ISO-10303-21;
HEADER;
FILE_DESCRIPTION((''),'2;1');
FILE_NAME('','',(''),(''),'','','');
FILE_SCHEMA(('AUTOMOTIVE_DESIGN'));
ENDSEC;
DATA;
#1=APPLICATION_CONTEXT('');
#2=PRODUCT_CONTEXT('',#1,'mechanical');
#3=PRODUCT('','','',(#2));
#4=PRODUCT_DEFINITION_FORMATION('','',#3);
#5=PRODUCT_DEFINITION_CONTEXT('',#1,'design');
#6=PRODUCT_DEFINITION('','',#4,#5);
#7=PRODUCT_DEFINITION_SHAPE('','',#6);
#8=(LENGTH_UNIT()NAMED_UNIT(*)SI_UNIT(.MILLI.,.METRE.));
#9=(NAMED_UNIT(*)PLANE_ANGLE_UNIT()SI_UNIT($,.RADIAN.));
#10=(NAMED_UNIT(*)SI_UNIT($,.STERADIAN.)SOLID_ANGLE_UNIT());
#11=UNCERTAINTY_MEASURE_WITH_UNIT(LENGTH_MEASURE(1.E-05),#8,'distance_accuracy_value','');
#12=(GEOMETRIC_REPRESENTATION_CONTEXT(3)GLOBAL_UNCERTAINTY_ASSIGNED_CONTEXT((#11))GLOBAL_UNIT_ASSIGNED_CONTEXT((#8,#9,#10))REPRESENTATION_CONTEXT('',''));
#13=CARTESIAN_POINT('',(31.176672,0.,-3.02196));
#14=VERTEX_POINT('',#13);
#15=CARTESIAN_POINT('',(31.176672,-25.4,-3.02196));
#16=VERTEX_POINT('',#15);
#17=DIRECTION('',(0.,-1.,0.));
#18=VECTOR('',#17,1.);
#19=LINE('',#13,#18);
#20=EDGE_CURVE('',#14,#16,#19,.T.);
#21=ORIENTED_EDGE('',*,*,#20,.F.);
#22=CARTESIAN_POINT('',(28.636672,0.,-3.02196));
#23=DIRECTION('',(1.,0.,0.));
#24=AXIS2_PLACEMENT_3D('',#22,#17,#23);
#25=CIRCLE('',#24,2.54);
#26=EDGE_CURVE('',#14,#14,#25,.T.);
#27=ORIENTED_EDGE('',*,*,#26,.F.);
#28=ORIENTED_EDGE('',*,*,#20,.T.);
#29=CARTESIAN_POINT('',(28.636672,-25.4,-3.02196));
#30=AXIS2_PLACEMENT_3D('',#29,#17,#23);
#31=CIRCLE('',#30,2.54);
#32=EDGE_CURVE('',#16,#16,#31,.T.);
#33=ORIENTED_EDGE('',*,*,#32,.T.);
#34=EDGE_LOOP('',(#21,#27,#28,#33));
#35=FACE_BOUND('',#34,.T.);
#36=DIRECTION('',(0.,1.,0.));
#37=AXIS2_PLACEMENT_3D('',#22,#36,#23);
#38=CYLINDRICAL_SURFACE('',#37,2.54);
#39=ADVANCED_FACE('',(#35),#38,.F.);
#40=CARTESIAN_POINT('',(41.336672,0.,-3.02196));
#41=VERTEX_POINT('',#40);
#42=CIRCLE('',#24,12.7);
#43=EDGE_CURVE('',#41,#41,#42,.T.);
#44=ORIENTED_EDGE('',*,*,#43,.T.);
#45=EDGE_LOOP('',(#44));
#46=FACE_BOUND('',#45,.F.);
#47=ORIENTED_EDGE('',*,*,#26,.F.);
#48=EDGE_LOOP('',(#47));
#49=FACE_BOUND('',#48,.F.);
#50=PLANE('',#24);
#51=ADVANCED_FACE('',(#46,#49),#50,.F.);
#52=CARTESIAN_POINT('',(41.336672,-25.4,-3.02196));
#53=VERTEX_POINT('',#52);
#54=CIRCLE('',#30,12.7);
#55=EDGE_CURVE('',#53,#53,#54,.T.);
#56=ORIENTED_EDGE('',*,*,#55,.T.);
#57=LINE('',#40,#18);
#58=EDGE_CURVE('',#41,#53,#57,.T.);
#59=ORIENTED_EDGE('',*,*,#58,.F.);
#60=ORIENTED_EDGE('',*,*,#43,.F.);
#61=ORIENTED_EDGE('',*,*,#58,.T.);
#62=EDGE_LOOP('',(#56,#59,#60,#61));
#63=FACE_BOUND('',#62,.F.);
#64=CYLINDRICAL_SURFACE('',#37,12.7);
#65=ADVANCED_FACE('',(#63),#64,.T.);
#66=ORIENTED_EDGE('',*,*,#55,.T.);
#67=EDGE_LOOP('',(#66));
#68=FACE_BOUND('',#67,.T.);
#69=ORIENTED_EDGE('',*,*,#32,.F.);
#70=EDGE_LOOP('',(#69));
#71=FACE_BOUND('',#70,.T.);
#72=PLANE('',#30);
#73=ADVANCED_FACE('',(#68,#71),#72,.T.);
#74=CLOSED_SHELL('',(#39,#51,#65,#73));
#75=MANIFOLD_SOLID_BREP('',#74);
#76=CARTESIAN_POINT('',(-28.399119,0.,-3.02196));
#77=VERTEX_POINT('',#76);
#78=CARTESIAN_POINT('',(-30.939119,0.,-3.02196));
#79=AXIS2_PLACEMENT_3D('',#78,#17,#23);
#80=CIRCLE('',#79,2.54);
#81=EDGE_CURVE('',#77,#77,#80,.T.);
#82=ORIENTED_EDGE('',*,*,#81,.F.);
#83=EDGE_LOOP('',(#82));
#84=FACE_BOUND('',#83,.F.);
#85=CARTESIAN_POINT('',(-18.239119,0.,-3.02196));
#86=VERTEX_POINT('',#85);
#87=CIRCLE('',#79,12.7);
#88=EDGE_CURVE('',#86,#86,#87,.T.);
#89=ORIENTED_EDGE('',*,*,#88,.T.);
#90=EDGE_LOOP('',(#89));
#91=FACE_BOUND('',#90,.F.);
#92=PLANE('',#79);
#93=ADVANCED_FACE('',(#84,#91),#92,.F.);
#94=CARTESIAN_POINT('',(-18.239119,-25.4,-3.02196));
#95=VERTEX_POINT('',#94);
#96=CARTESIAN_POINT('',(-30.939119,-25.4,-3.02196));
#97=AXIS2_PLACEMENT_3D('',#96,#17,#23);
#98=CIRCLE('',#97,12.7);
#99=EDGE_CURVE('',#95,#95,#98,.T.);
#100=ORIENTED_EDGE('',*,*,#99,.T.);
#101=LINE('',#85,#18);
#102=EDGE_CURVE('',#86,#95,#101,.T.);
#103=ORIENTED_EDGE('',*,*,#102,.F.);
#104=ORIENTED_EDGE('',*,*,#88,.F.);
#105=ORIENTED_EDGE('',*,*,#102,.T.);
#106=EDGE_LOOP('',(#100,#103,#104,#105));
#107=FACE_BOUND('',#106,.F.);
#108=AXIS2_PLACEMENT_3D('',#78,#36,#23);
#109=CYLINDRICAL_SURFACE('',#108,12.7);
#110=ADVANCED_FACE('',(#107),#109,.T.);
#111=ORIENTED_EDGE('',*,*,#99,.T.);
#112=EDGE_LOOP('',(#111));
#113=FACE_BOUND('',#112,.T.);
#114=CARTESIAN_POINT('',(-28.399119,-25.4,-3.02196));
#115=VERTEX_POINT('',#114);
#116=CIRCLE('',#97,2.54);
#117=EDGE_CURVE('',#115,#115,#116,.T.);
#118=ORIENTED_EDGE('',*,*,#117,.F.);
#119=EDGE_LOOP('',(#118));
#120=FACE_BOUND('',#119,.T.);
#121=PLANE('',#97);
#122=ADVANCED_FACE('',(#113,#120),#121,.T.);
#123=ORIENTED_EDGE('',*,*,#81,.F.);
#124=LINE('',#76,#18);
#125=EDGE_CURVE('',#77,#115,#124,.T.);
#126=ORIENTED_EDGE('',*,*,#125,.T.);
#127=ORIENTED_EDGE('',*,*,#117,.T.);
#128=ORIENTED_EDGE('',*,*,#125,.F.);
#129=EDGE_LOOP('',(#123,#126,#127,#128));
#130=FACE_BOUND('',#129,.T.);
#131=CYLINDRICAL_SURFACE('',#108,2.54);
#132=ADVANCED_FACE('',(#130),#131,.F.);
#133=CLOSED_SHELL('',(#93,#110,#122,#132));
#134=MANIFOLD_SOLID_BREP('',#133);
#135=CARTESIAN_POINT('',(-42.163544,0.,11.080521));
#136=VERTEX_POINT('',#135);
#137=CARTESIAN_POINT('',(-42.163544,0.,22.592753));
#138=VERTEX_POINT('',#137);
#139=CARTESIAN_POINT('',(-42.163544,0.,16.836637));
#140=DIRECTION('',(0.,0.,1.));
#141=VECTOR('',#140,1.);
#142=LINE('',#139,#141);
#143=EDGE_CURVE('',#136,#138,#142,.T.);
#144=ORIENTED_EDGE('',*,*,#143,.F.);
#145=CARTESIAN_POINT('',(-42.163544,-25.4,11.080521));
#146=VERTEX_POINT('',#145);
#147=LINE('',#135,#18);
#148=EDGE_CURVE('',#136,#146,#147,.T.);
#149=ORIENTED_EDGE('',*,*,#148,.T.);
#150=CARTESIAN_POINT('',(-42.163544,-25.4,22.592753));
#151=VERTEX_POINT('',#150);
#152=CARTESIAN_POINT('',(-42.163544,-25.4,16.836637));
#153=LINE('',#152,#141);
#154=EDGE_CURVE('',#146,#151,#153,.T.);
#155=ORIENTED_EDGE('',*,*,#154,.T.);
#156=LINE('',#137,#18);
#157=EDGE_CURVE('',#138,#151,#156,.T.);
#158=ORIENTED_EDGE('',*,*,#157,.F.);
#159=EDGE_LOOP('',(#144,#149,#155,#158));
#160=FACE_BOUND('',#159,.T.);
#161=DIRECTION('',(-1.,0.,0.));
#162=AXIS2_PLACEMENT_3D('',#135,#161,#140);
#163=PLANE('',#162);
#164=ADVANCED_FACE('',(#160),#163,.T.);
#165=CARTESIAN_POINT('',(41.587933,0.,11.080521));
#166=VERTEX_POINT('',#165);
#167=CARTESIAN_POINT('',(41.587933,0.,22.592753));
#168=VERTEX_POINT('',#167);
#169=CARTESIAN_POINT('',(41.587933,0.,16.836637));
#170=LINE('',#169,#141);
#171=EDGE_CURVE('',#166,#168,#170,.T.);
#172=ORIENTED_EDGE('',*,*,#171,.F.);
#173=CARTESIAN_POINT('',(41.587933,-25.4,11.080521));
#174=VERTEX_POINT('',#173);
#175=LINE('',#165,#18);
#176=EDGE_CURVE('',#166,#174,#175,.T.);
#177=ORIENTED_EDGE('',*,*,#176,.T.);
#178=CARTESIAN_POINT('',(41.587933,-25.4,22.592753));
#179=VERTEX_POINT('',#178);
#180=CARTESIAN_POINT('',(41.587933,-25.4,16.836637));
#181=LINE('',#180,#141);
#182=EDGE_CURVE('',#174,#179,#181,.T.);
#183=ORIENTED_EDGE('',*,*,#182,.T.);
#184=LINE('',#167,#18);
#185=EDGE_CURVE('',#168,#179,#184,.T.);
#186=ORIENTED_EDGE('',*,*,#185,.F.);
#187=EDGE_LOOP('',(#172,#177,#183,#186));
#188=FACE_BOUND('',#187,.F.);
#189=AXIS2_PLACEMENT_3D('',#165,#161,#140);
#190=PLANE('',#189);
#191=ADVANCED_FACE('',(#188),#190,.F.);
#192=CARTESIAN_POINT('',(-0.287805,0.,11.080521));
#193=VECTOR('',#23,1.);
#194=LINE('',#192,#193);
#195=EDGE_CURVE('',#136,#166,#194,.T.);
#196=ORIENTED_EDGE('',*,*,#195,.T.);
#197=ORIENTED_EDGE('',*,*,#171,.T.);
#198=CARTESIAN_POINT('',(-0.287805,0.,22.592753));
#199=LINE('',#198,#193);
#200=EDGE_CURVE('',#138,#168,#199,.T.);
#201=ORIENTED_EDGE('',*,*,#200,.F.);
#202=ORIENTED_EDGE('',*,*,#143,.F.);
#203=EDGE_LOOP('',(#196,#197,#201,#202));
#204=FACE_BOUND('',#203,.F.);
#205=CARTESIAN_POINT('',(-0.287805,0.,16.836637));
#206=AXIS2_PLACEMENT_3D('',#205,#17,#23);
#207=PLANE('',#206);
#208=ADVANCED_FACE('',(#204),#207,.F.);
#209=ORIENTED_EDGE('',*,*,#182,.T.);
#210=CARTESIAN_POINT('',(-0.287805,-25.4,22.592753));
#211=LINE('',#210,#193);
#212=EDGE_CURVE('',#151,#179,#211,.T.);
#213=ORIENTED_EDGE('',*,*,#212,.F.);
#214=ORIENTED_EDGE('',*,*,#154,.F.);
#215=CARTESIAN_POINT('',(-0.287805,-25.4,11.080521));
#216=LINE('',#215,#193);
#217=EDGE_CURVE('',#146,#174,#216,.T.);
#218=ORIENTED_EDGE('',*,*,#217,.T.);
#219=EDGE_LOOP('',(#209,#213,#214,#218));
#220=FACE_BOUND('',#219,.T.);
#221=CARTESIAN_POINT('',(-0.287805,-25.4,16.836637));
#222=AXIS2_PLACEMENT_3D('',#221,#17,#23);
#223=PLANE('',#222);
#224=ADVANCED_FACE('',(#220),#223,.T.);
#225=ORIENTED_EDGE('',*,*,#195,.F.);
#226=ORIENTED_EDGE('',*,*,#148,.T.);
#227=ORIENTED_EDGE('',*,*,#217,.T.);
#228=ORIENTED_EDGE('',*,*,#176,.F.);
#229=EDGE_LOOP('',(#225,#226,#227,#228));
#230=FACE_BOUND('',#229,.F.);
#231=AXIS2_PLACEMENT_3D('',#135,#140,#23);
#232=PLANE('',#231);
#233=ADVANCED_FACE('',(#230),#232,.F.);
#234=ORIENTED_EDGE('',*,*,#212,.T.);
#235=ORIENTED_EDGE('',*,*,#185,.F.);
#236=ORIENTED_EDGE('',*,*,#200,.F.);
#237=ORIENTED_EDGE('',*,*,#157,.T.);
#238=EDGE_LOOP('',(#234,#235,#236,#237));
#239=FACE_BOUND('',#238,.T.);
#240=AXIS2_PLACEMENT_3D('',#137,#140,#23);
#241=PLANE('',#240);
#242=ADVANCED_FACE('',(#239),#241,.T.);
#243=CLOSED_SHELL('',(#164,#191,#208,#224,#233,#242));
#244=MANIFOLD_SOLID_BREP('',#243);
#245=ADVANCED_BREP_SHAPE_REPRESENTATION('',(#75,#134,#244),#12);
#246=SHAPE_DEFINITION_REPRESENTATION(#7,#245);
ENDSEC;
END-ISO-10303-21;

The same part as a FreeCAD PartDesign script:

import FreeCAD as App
import Part
import Sketcher

V = App.Vector
Q = App.Units.Quantity


def add_polygon(sketch, points):
    """Adds a closed chain of lines whose ends are joined by coincident constraints."""
    first, n = sketch.GeometryCount, len(points)
    for a, b in zip(points, points[1:] + points[:1]):
        sketch.addGeometry(Part.LineSegment(App.Vector(*a, 0), App.Vector(*b, 0)), False)
    for i in range(n):
        sketch.addConstraint(Sketcher.Constraint("Coincident", first + i, 2, first + (i + 1) % n, 1))

doc = App.newDocument("Part")
body = doc.addObject("PartDesign::Body", "Body")
body.AllowCompound = True

# Sketch on XZ plane
sketch1 = body.newObject("Sketcher::SketchObject", "Sketch")
sketch1.AttachmentSupport = (doc.getObject("XZ_Plane"), [""])
sketch1.MapMode = "FlatFace"
add_polygon(sketch1, [(-42.2, 22.6), (-42.2, 11.1), (41.6, 11.1), (41.6, 22.6)])  # lines 0-3
sketch1.addGeometry(Part.Circle(V(-30.9, -3, 0), V(0, 0, 1), 12.7), False)  # 4
sketch1.addGeometry(Part.Circle(V(-30.9, -3, 0), V(0, 0, 1), 2.5), False)  # 5
sketch1.addGeometry(Part.Circle(V(28.6, -3, 0), V(0, 0, 1), 12.7), False)  # 6
sketch1.addGeometry(Part.Circle(V(28.6, -3, 0), V(0, 0, 1), 2.5), False)  # 7
sketch1.addConstraint([
    Sketcher.Constraint("Vertical", 0),
    Sketcher.Constraint("Horizontal", 1),
    Sketcher.Constraint("Vertical", 2),
    Sketcher.Constraint("Horizontal", 3),
    Sketcher.Constraint("Coincident", 5, 3, 4, 3),
    Sketcher.Constraint("Coincident", 7, 3, 6, 3),
    Sketcher.Constraint("Equal", 4, 6),
    Sketcher.Constraint("Equal", 5, 7),
    Sketcher.Constraint("Horizontal", 5, 3, 6, 3),
    Sketcher.Constraint("Diameter", 4, Q("1 in")),
    Sketcher.Constraint("Diameter", 5, Q("0.2 in")),
    Sketcher.Constraint("DistanceY", 0, 2, 0, 1, 11.512232),
    Sketcher.Constraint("DistanceX", 1, 1, 1, 2, 83.751477),
    Sketcher.Constraint("DistanceX", 4, 3, -1, 1, 30.939119),
    Sketcher.Constraint("DistanceY", 4, 3, -1, 1, 3.02196),
    Sketcher.Constraint("DistanceY", -1, 1, 0, 2, 11.080521),
    Sketcher.Constraint("DistanceX", 4, 3, 6, 3, 59.575791),
    Sketcher.Constraint("DistanceX", 6, 3, 1, 2, 12.951261),
])
pad1 = body.newObject("PartDesign::Pad", "Pad")
pad1.Profile = sketch1
pad1.Length = Q("1 in")

doc.recompute()
